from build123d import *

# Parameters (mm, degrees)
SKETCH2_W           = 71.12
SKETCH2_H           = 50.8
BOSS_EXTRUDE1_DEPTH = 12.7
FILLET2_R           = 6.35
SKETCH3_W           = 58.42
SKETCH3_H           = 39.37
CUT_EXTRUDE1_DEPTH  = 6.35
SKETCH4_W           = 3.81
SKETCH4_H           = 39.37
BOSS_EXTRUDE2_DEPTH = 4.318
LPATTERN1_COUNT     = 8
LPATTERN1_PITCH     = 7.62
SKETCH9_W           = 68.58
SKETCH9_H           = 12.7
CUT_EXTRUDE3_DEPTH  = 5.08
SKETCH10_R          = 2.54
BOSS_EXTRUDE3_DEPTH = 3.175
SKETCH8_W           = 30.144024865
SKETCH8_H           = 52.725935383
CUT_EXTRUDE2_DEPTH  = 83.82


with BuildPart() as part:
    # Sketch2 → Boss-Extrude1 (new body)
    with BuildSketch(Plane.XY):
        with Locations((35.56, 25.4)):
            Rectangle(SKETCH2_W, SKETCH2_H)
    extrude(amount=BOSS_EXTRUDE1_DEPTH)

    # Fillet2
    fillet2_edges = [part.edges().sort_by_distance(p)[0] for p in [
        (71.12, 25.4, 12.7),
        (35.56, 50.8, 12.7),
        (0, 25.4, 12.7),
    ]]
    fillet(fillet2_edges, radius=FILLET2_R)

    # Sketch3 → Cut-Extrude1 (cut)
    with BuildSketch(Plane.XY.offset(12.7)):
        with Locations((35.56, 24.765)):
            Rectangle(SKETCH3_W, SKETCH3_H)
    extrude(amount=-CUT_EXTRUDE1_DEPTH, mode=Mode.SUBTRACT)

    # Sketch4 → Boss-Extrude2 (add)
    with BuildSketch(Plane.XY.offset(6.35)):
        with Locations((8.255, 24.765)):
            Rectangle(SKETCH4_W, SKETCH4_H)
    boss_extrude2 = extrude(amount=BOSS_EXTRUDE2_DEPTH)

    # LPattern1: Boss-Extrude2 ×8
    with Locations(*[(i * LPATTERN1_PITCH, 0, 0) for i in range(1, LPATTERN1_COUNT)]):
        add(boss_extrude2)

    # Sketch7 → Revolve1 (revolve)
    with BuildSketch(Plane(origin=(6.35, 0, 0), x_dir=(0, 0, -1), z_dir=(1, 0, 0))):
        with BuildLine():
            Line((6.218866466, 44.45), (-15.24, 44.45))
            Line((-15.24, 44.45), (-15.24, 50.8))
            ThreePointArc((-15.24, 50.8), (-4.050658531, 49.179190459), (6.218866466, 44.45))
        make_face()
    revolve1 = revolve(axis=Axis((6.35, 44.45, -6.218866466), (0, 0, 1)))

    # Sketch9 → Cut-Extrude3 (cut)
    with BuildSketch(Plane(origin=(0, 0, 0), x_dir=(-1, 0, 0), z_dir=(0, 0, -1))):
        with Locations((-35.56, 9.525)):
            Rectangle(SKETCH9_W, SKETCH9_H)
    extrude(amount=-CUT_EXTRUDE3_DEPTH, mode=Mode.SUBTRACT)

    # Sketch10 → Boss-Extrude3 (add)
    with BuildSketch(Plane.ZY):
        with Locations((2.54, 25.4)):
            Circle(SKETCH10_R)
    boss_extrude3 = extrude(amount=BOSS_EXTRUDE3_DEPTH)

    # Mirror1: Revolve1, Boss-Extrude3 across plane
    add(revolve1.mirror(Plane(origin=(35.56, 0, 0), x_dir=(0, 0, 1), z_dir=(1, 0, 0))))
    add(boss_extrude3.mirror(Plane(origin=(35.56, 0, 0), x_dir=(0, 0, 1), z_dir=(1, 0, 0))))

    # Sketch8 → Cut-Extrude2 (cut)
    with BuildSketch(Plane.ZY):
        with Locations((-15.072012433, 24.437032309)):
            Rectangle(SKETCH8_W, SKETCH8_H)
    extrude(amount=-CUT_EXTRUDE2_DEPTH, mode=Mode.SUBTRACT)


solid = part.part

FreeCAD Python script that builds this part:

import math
import FreeCAD as App
import Part
import Sketcher
Q = App.Units.Quantity


def edges_at(feature, points):
    """Names of the edges that pass closest to the given points."""
    edges = feature.Shape.Edges
    near = lambda p: min(range(len(edges)), key=lambda i: edges[i].distToShape(Part.Vertex(*p))[0])
    return sorted({f"Edge{near(p) + 1}" for p in points})

doc = App.newDocument("Part")
body = doc.addObject("PartDesign::Body", "Body")

# Sketch on XY plane
sketch1 = body.newObject("Sketcher::SketchObject", "Sketch")
sketch1.AttachmentSupport = (doc.getObject("XY_Plane"), [""])
sketch1.MapMode = "FlatFace"
sketch1.addGeometry(Part.LineSegment(App.Vector(0, 51, 0), App.Vector(0, 0, 0)), False)
sketch1.addGeometry(Part.LineSegment(App.Vector(0, 0, 0), App.Vector(71, 0, 0)), False)
sketch1.addGeometry(Part.LineSegment(App.Vector(71, 0, 0), App.Vector(71, 51, 0)), False)
sketch1.addGeometry(Part.LineSegment(App.Vector(71, 51, 0), App.Vector(0, 51, 0)), False)
sketch1.addConstraint(Sketcher.Constraint("Coincident", 0, 2, 1, 1))
sketch1.addConstraint(Sketcher.Constraint("Coincident", 1, 2, 2, 1))
sketch1.addConstraint(Sketcher.Constraint("Coincident", 2, 2, 3, 1))
sketch1.addConstraint(Sketcher.Constraint("Coincident", 3, 2, 0, 1))
sketch1.addConstraint(Sketcher.Constraint("Vertical", 0))
sketch1.addConstraint(Sketcher.Constraint("Horizontal", 1))
sketch1.addConstraint(Sketcher.Constraint("Vertical", 2))
sketch1.addConstraint(Sketcher.Constraint("Horizontal", 3))
sketch1.addConstraint(Sketcher.Constraint("Coincident", 0, 2, -1, 1))
sketch1.addConstraint(Sketcher.Constraint("DistanceY", 0, 2, 0, 1, Q("2 in")))
sketch1.addConstraint(Sketcher.Constraint("DistanceX", 1, 1, 1, 2, Q("2.8 in")))
pad1 = body.newObject("PartDesign::Pad", "Pad")
pad1.Profile = sketch1
pad1.Length = Q("0.5 in")
doc.recompute()

fillet = body.newObject("PartDesign::Fillet", "Fillet")
fillet.Base = (pad1, edges_at(pad1, [(71.12, 25.4, 12.7), (35.56, 50.8, 12.7), (0, 25.4, 12.7)]))
fillet.Radius = Q("0.25 in")

# Sketch on XY plane
sketch2 = body.newObject("Sketcher::SketchObject", "Sketch001")
sketch2.AttachmentSupport = (doc.getObject("XY_Plane"), [""])
sketch2.MapMode = "FlatFace"
sketch2.AttachmentOffset = App.Placement(App.Vector(0, 0, 0.5 * 25.4), App.Rotation())
sketch2.addGeometry(Part.LineSegment(App.Vector(6, 44, 0), App.Vector(6, 5, 0)), False)
sketch2.addGeometry(Part.LineSegment(App.Vector(6, 5, 0), App.Vector(65, 5, 0)), False)
sketch2.addGeometry(Part.LineSegment(App.Vector(65, 5, 0), App.Vector(65, 44, 0)), False)
sketch2.addGeometry(Part.LineSegment(App.Vector(65, 44, 0), App.Vector(6, 44, 0)), False)
sketch2.addConstraint(Sketcher.Constraint("Coincident", 0, 2, 1, 1))
sketch2.addConstraint(Sketcher.Constraint("Coincident", 1, 2, 2, 1))
sketch2.addConstraint(Sketcher.Constraint("Coincident", 2, 2, 3, 1))
sketch2.addConstraint(Sketcher.Constraint("Coincident", 3, 2, 0, 1))
sketch2.addConstraint(Sketcher.Constraint("Vertical", 0))
sketch2.addConstraint(Sketcher.Constraint("Horizontal", 1))
sketch2.addConstraint(Sketcher.Constraint("Vertical", 2))
sketch2.addConstraint(Sketcher.Constraint("Horizontal", 3))
sketch2.addConstraint(Sketcher.Constraint("DistanceX", 1, 1, 1, 2, Q("2.3 in")))
sketch2.addConstraint(Sketcher.Constraint("DistanceY", 0, 2, 0, 1, Q("1.55 in")))
sketch2.addConstraint(Sketcher.Constraint("DistanceY", -1, 1, 0, 2, Q("0.2 in")))
sketch2.addConstraint(Sketcher.Constraint("DistanceX", -1, 1, 0, 2, Q("0.25 in")))
pocket1 = body.newObject("PartDesign::Pocket", "Pocket")
pocket1.Profile = sketch2
pocket1.Length = Q("0.25 in")

# Sketch on XY plane
sketch3 = body.newObject("Sketcher::SketchObject", "Sketch002")
sketch3.AttachmentSupport = (doc.getObject("XY_Plane"), [""])
sketch3.MapMode = "FlatFace"
sketch3.AttachmentOffset = App.Placement(App.Vector(0, 0, 0.25 * 25.4), App.Rotation())
sketch3.addGeometry(Part.LineSegment(App.Vector(6.3, 44.5, 0), App.Vector(6.3, 5.1, 0)), False)
sketch3.addGeometry(Part.LineSegment(App.Vector(6.3, 5.1, 0), App.Vector(10.2, 5.1, 0)), False)
sketch3.addGeometry(Part.LineSegment(App.Vector(10.2, 5.1, 0), App.Vector(10.2, 44.5, 0)), False)
sketch3.addGeometry(Part.LineSegment(App.Vector(10.2, 44.5, 0), App.Vector(6.3, 44.5, 0)), False)
sketch3.addConstraint(Sketcher.Constraint("Coincident", 0, 2, 1, 1))
sketch3.addConstraint(Sketcher.Constraint("Coincident", 1, 2, 2, 1))
sketch3.addConstraint(Sketcher.Constraint("Coincident", 2, 2, 3, 1))
sketch3.addConstraint(Sketcher.Constraint("Coincident", 3, 2, 0, 1))
sketch3.addConstraint(Sketcher.Constraint("Vertical", 0))
sketch3.addConstraint(Sketcher.Constraint("Horizontal", 1))
sketch3.addConstraint(Sketcher.Constraint("Vertical", 2))
sketch3.addConstraint(Sketcher.Constraint("Horizontal", 3))
sketch3.addConstraint(Sketcher.Constraint("DistanceX", 1, 1, 1, 2, Q("0.15 in")))
sketch3.addConstraint(Sketcher.Constraint("DistanceY", 0, 2, 0, 1, Q("1.55 in")))
sketch3.addConstraint(Sketcher.Constraint("DistanceY", -1, 1, 0, 2, Q("0.2 in")))
sketch3.addConstraint(Sketcher.Constraint("DistanceX", -1, 1, 1, 2, Q("0.4 in")))
pad2 = body.newObject("PartDesign::Pad", "Pad001")
pad2.Profile = sketch3
pad2.Length = Q("0.17 in")
doc.recompute()

linearpattern = body.newObject("PartDesign::LinearPattern", "LinearPattern")
linearpattern.Originals = [pad2]
linearpattern.Direction = (doc.getObject("X_Axis"), [""])
linearpattern.Mode = "offset"
linearpattern.Offset = Q("0.3 in")
linearpattern.Occurrences = 8
body.Tip = linearpattern

# Sketch on YZ plane
sketch4 = body.newObject("Sketcher::SketchObject", "Sketch003")
sketch4.AttachmentSupport = (doc.getObject("YZ_Plane"), [""])
sketch4.MapMode = "FlatFace"
sketch4.AttachmentOffset = App.Placement(App.Vector(0, 0, 0.25 * 25.4), App.Rotation())
sketch4.addGeometry(Part.LineSegment(App.Vector(44, 15, 0), App.Vector(44, -6, 0)), False)
sketch4.addGeometry(Part.ArcOfCircle(Part.Circle(App.Vector(11, 15, 0), App.Vector(0, 0, 1), 39), math.radians(-33), math.radians(0)), False)
sketch4.addGeometry(Part.LineSegment(App.Vector(51, 15, 0), App.Vector(44, 15, 0)), False)
sketch4.addGeometry(Part.LineSegment(App.Vector(44, -6, 0), App.Vector(44, 15, 0)), True)  # axis
sketch4.addConstraint(Sketcher.Constraint("Coincident", 0, 2, 1, 1))
sketch4.addConstraint(Sketcher.Constraint("Coincident", 1, 2, 2, 1))
sketch4.addConstraint(Sketcher.Constraint("Coincident", 2, 2, 0, 1))
sketch4.addConstraint(Sketcher.Constraint("Vertical", 0))
sketch4.addConstraint(Sketcher.Constraint("Horizontal", 2))
sketch4.addConstraint(Sketcher.Constraint("Vertical", 3))
sketch4.addConstraint(Sketcher.Constraint("Coincident", 3, 1, 0, 2))
sketch4.addConstraint(Sketcher.Constraint("Horizontal", 1, 2, 3, 2))
sketch4.addConstraint(Sketcher.Constraint("DistanceX", -1, 1, 1, 2, Q("2 in")))
sketch4.addConstraint(Sketcher.Constraint("DistanceX", 2, 2, 2, 1, Q("0.25 in")))
sketch4.addConstraint(Sketcher.Constraint("DistanceY", -1, 1, 1, 3, Q("0.6 in")))
sketch4.addConstraint(Sketcher.Constraint("DistanceY", -1, 1, 1, 2, Q("0.6 in")))
sketch4.addConstraint(Sketcher.Constraint("Radius", 1, Q("1.5525 in")))
revolution = body.newObject("PartDesign::Revolution", "Revolution")
revolution.Profile = sketch4
revolution.ReferenceAxis = (sketch4, ["Axis0"])
revolution.Angle = 360

# Sketch on XY plane
sketch5 = body.newObject("Sketcher::SketchObject", "Sketch004")
sketch5.AttachmentSupport = (doc.getObject("XY_Plane"), [""])
sketch5.MapMode = "FlatFace"
sketch5.addGeometry(Part.LineSegment(App.Vector(70, 16, 0), App.Vector(70, 3, 0)), False)
sketch5.addGeometry(Part.LineSegment(App.Vector(70, 3, 0), App.Vector(1, 3, 0)), False)
sketch5.addGeometry(Part.LineSegment(App.Vector(1, 3, 0), App.Vector(1, 16, 0)), False)
sketch5.addGeometry(Part.LineSegment(App.Vector(1, 16, 0), App.Vector(70, 16, 0)), False)
sketch5.addConstraint(Sketcher.Constraint("Coincident", 0, 2, 1, 1))
sketch5.addConstraint(Sketcher.Constraint("Coincident", 1, 2, 2, 1))
sketch5.addConstraint(Sketcher.Constraint("Coincident", 2, 2, 3, 1))
sketch5.addConstraint(Sketcher.Constraint("Coincident", 3, 2, 0, 1))
sketch5.addConstraint(Sketcher.Constraint("Vertical", 0))
sketch5.addConstraint(Sketcher.Constraint("Horizontal", 1))
sketch5.addConstraint(Sketcher.Constraint("Vertical", 2))
sketch5.addConstraint(Sketcher.Constraint("Horizontal", 3))
sketch5.addConstraint(Sketcher.Constraint("DistanceX", 1, 2, 1, 1, Q("2.7 in")))
sketch5.addConstraint(Sketcher.Constraint("DistanceY", 0, 2, 0, 1, Q("0.5 in")))
sketch5.addConstraint(Sketcher.Constraint("DistanceX", -1, 1, 0, 2, Q("2.75 in")))
sketch5.addConstraint(Sketcher.Constraint("DistanceY", -1, 1, 0, 2, Q("0.125 in")))
pocket2 = body.newObject("PartDesign::Pocket", "Pocket001")
pocket2.Profile = sketch5
pocket2.Length = Q("0.2 in")
pocket2.Reversed = True

# Sketch on YZ plane
sketch6 = body.newObject("Sketcher::SketchObject", "Sketch005")
sketch6.AttachmentSupport = (doc.getObject("YZ_Plane"), [""])
sketch6.MapMode = "FlatFace"
sketch6.addGeometry(Part.Circle(App.Vector(25.4, 2.5, 0), App.Vector(0, 0, 1), 2.5), False)
sketch6.addConstraint(Sketcher.Constraint("Diameter", 0, Q("0.2 in")))
sketch6.addConstraint(Sketcher.Constraint("DistanceX", -1, 1, 0, 3, Q("1 in")))
sketch6.addConstraint(Sketcher.Constraint("DistanceY", -1, 1, 0, 3, Q("0.1 in")))
pad3 = body.newObject("PartDesign::Pad", "Pad002")
pad3.Profile = sketch6
pad3.Length = Q("0.125 in")
pad3.Reversed = True
doc.recompute()

datumplane = body.newObject("PartDesign::Plane", "DatumPlane")
datumplane.AttachmentSupport = (doc.getObject("YZ_Plane"), [""])
datumplane.MapMode = "FlatFace"
datumplane.AttachmentOffset = App.Placement(App.Vector(0, 0, 1.4 * 25.4), App.Rotation())
mirrored = body.newObject("PartDesign::Mirrored", "Mirrored")
mirrored.Originals = [revolution, pad3]
mirrored.MirrorPlane = (datumplane, [""])
body.Tip = mirrored

# Sketch on YZ plane
sketch7 = body.newObject("Sketcher::SketchObject", "Sketch006")
sketch7.AttachmentSupport = (doc.getObject("YZ_Plane"), [""])
sketch7.MapMode = "FlatFace"
sketch7.addGeometry(Part.LineSegment(App.Vector(51, -30, 0), App.Vector(-2, -30, 0)), False)
sketch7.addGeometry(Part.LineSegment(App.Vector(-2, -30, 0), App.Vector(-2, 0, 0)), False)
sketch7.addGeometry(Part.LineSegment(App.Vector(-2, 0, 0), App.Vector(51, 0, 0)), False)
sketch7.addGeometry(Part.LineSegment(App.Vector(51, 0, 0), App.Vector(51, -30, 0)), False)
sketch7.addConstraint(Sketcher.Constraint("Coincident", 0, 2, 1, 1))
sketch7.addConstraint(Sketcher.Constraint("Coincident", 1, 2, 2, 1))
sketch7.addConstraint(Sketcher.Constraint("Coincident", 2, 2, 3, 1))
sketch7.addConstraint(Sketcher.Constraint("Coincident", 3, 2, 0, 1))
sketch7.addConstraint(Sketcher.Constraint("Horizontal", 0))
sketch7.addConstraint(Sketcher.Constraint("Vertical", 1))
sketch7.addConstraint(Sketcher.Constraint("Horizontal", 2))
sketch7.addConstraint(Sketcher.Constraint("Vertical", 3))
sketch7.addConstraint(Sketcher.Constraint("PointOnObject", 1, 2, -1))
sketch7.addConstraint(Sketcher.Constraint("DistanceX", -1, 1, 2, 2, Q("2 in")))
sketch7.addConstraint(Sketcher.Constraint("DistanceX", 0, 2, 0, 1, Q("52.725935 mm")))
sketch7.addConstraint(Sketcher.Constraint("DistanceY", 1, 1, 1, 2, Q("30.144025 mm")))
pocket3 = body.newObject("PartDesign::Pocket", "Pocket002")
pocket3.Profile = sketch7
pocket3.Length = Q("3.3 in")
pocket3.Reversed = True

doc.recompute()
